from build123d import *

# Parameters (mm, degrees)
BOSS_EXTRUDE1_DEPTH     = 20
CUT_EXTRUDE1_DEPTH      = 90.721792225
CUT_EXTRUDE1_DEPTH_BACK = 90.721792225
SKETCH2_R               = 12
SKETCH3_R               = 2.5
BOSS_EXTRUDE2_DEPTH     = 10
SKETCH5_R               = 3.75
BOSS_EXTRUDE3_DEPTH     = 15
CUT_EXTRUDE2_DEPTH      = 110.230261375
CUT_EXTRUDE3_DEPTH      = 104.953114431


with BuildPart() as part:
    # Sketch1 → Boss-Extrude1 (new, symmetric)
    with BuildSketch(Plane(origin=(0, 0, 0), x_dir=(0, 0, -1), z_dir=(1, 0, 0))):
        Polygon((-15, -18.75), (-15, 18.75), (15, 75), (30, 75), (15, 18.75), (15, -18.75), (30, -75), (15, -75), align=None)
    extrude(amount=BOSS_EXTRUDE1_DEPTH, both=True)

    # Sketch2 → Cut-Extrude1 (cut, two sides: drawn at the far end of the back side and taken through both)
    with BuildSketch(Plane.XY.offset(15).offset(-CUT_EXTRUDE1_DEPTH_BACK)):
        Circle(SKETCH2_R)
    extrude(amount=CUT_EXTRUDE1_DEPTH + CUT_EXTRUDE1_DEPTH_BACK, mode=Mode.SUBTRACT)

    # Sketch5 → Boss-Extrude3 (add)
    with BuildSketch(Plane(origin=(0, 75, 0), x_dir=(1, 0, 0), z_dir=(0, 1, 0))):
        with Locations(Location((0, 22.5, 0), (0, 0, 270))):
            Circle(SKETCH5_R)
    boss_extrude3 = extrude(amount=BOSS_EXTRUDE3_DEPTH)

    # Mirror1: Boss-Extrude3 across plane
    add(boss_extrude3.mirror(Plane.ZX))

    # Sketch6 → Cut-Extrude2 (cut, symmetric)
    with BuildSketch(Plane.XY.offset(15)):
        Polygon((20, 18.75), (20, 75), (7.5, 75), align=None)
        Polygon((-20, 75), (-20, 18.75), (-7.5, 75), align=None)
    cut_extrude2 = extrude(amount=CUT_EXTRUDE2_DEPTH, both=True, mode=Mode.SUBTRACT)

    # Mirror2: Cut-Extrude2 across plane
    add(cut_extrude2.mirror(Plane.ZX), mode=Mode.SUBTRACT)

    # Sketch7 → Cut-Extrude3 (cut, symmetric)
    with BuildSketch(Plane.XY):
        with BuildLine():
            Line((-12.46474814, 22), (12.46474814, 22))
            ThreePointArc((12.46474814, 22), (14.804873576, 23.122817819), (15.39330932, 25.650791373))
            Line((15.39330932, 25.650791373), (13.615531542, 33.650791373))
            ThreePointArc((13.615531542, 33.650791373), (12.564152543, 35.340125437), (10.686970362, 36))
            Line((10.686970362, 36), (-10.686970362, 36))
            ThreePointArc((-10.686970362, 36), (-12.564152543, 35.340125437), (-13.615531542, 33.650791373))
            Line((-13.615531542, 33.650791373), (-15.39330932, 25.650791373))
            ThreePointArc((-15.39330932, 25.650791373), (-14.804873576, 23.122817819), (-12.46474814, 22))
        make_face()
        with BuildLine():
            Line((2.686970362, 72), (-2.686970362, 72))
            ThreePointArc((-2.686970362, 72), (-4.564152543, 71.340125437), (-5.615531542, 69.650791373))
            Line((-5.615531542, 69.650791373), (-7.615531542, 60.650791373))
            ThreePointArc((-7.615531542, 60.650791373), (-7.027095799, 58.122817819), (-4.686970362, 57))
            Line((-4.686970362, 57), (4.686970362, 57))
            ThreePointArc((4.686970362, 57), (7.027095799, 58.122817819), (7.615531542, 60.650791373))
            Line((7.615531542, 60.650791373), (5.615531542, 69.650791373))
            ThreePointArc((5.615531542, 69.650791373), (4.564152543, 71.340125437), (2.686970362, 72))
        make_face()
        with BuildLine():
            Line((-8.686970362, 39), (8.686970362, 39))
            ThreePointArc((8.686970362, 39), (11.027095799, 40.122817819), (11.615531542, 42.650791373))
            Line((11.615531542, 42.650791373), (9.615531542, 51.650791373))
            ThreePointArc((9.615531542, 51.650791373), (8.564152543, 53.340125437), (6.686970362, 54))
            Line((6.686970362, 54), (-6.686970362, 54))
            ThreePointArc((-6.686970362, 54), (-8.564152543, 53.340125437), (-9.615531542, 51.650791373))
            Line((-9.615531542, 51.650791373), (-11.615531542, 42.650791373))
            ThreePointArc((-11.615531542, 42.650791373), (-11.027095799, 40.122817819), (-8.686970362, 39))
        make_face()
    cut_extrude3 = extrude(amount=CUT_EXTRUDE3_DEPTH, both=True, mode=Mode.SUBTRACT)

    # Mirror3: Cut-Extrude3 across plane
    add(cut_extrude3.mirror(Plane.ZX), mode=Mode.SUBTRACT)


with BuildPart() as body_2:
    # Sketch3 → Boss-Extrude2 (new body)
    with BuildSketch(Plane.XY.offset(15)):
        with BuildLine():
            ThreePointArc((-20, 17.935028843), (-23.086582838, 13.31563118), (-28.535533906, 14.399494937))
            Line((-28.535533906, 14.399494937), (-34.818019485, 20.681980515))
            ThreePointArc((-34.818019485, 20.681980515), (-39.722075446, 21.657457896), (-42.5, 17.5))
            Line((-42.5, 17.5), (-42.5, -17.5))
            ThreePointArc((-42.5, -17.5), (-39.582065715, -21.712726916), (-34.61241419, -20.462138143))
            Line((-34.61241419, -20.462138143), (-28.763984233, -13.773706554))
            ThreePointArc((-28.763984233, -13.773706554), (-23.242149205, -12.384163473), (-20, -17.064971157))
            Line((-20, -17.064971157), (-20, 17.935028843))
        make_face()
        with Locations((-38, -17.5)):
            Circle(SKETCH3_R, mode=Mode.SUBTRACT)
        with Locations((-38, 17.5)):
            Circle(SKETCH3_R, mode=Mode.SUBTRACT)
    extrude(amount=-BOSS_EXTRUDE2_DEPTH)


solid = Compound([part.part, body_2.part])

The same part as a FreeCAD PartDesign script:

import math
import FreeCAD as App
import Part
import Sketcher

V = App.Vector
Q = App.Units.Quantity


def add_polygon(sketch, points):
    """Adds a closed chain of lines whose ends are joined by coincident constraints."""
    first, n = sketch.GeometryCount, len(points)
    for a, b in zip(points, points[1:] + points[:1]):
        sketch.addGeometry(Part.LineSegment(App.Vector(*a, 0), App.Vector(*b, 0)), False)
    for i in range(n):
        sketch.addConstraint(Sketcher.Constraint("Coincident", first + i, 2, first + (i + 1) % n, 1))

doc = App.newDocument("Part")
body = doc.addObject("PartDesign::Body", "Body")

sketch1 = body.newObject("Sketcher::SketchObject", "Sketch")
sketch1.AttachmentSupport = (doc.getObject("YZ_Plane"), [""])
sketch1.MapMode = "FlatFace"
add_polygon(sketch1, [(19, 15), (-19, 15), (-75, -15), (-75, -30), (-19, -15), (19, -15), (75, -30), (75, -15)])
sketch1.addConstraint([
    Sketcher.Constraint("Horizontal", 0),
    Sketcher.Constraint("Vertical", 2),
    Sketcher.Constraint("Horizontal", 4),
    Sketcher.Constraint("Vertical", 6),
    Sketcher.Constraint("Symmetric", 0, 2, 4, 2, -1, 1),
    Sketcher.Constraint("Symmetric", 2, 2, 5, 2, -2),
    Sketcher.Constraint("Horizontal", 1, 2, 3, 2),
    Sketcher.Constraint("Horizontal", 4, 2, 6, 2),
    Sketcher.Constraint("Vertical", 0, 2, 3, 2),
    Sketcher.Constraint("Vertical", 4, 2, 7, 2),
    Sketcher.Constraint("DistanceY", 2, 2, 2, 1, 15.0),
    Sketcher.Constraint("DistanceX", 0, 2, 0, 1, 37.5),
    Sketcher.Constraint("DistanceY", -1, 1, 0, 2, 15.0),
    Sketcher.Constraint("DistanceX", 1, 2, -1, 1, 75.0),
])
pad1 = body.newObject("PartDesign::Pad", "Pad")
pad1.Profile = sketch1
pad1.Length = 40
pad1.Midplane = True

sketch2 = body.newObject("Sketcher::SketchObject", "Sketch001")
sketch2.AttachmentSupport = (doc.getObject("XY_Plane"), [""])
sketch2.MapMode = "FlatFace"
sketch2.AttachmentOffset = App.Placement(V(0, 0, 15), App.Rotation())
sketch2.addGeometry(Part.Circle(V(0, 0, 0), V(0, 0, 1), 12), False)
sketch2.addConstraint([
    Sketcher.Constraint("Coincident", 0, 3, -1, 1),
    Sketcher.Constraint("Diameter", 0, 24.0),
])
pocket1 = body.newObject("PartDesign::Pocket", "Pocket")
pocket1.Profile = sketch2
pocket1.Type = "ThroughAll"
pocket1.Midplane = True

sketch3 = body.newObject("Sketcher::SketchObject", "Sketch002")
sketch3.AttachmentSupport = (doc.getObject("XZ_Plane"), [""])
sketch3.MapMode = "FlatFace"
sketch3.AttachmentOffset = App.Placement(V(0, 0, -75), App.Rotation())
sketch3.addGeometry(Part.Circle(V(0, -22.5, 0), V(0, 0, 1), 3.8), False)
sketch3.addConstraint([
    Sketcher.Constraint("PointOnObject", 0, 3, -2),
    Sketcher.Constraint("Diameter", 0, 7.5),
    Sketcher.Constraint("DistanceY", 0, 3, -1, 1, 22.5),
])
pad2 = body.newObject("PartDesign::Pad", "Pad001")
pad2.Profile = sketch3
pad2.Length = 15
pad2.Reversed = True
doc.recompute()

mirrored = body.newObject("PartDesign::Mirrored", "Mirrored")
mirrored.Originals = [pad2]
mirrored.MirrorPlane = (doc.getObject("XZ_Plane"), [""])
body.Tip = mirrored

sketch4 = body.newObject("Sketcher::SketchObject", "Sketch003")
sketch4.AttachmentSupport = (doc.getObject("XY_Plane"), [""])
sketch4.MapMode = "FlatFace"
sketch4.AttachmentOffset = App.Placement(V(0, 0, 15), App.Rotation())
add_polygon(sketch4, [(20, 19), (20, 75), (8, 75)])
add_polygon(sketch4, [(-20, 75), (-20, 19), (-8, 75)])
sketch4.addConstraint([
    Sketcher.Constraint("Vertical", 0),
    Sketcher.Constraint("Horizontal", 1),
    Sketcher.Constraint("Vertical", 3),
    Sketcher.Constraint("Horizontal", 5),
    Sketcher.Constraint("Symmetric", 2, 2, 3, 2, -2),
    Sketcher.Constraint("Symmetric", 1, 2, 4, 2, -2),
    Sketcher.Constraint("DistanceX", 1, 2, 1, 1, 12.5),
    Sketcher.Constraint("DistanceX", -1, 1, 0, 2, 20.0),
    Sketcher.Constraint("DistanceY", -1, 1, 0, 2, 75.0),
    Sketcher.Constraint("DistanceY", 0, 1, 0, 2, 56.25),
])
pocket2 = body.newObject("PartDesign::Pocket", "Pocket001")
pocket2.Profile = sketch4
pocket2.Length = 220.460523
pocket2.Midplane = True
doc.recompute()

mirrored2 = body.newObject("PartDesign::Mirrored", "Mirrored001")
mirrored2.Originals = [pocket2]
mirrored2.MirrorPlane = (doc.getObject("XZ_Plane"), [""])
body.Tip = mirrored2

sketch5 = body.newObject("Sketcher::SketchObject", "Sketch004")
sketch5.AttachmentSupport = (doc.getObject("XY_Plane"), [""])
sketch5.MapMode = "FlatFace"
sketch5.addGeometry([
    Part.LineSegment(V(-12.5, 22, 0), V(12.5, 22, 0)),
    Part.ArcOfCircle(Part.Circle(V(12.5, 25, 0), V(0, 0, 1), 3), math.radians(-90), math.radians(13)),
    Part.LineSegment(V(15.4, 25.7, 0), V(13.6, 33.7, 0)),
    Part.ArcOfCircle(Part.Circle(V(10.7, 33, 0), V(0, 0, 1), 3), math.radians(13), math.radians(90)),
    Part.LineSegment(V(10.7, 36, 0), V(-10.7, 36, 0)),
    Part.ArcOfCircle(Part.Circle(V(-10.7, 33, 0), V(0, 0, 1), 3), math.radians(90), math.radians(167)),
    Part.LineSegment(V(-13.6, 33.7, 0), V(-15.4, 25.7, 0)),
    Part.ArcOfCircle(Part.Circle(V(-12.5, 25, 0), V(0, 0, 1), 3), math.radians(167), math.radians(270)),
    Part.LineSegment(V(2.7, 72, 0), V(-2.7, 72, 0)),
    Part.ArcOfCircle(Part.Circle(V(-2.7, 69, 0), V(0, 0, 1), 3), math.radians(90), math.radians(167)),
    Part.LineSegment(V(-5.6, 69.7, 0), V(-7.6, 60.7, 0)),
    Part.ArcOfCircle(Part.Circle(V(-4.7, 60, 0), V(0, 0, 1), 3), math.radians(167), math.radians(270)),
    Part.LineSegment(V(-4.7, 57, 0), V(4.7, 57, 0)),
    Part.ArcOfCircle(Part.Circle(V(4.7, 60, 0), V(0, 0, 1), 3), math.radians(-90), math.radians(13)),
    Part.LineSegment(V(7.6, 60.7, 0), V(5.6, 69.7, 0)),
    Part.ArcOfCircle(Part.Circle(V(2.7, 69, 0), V(0, 0, 1), 3), math.radians(13), math.radians(90)),
    Part.LineSegment(V(-8.7, 39, 0), V(8.7, 39, 0)),
    Part.ArcOfCircle(Part.Circle(V(8.7, 42, 0), V(0, 0, 1), 3), math.radians(-90), math.radians(13)),
    Part.LineSegment(V(11.6, 42.7, 0), V(9.6, 51.7, 0)),
    Part.ArcOfCircle(Part.Circle(V(6.7, 51, 0), V(0, 0, 1), 3), math.radians(13), math.radians(90)),
    Part.LineSegment(V(6.7, 54, 0), V(-6.7, 54, 0)),
    Part.ArcOfCircle(Part.Circle(V(-6.7, 51, 0), V(0, 0, 1), 3), math.radians(90), math.radians(167)),
    Part.LineSegment(V(-9.6, 51.7, 0), V(-11.6, 42.7, 0)),
    Part.ArcOfCircle(Part.Circle(V(-8.7, 42, 0), V(0, 0, 1), 3), math.radians(167), math.radians(270)),
], False)
sketch5.addConstraint([
    Sketcher.Constraint("Tangent", 0, 2, 1, 1),
    Sketcher.Constraint("Tangent", 1, 2, 2, 1),
    Sketcher.Constraint("Tangent", 2, 2, 3, 1),
    Sketcher.Constraint("Tangent", 3, 2, 4, 1),
    Sketcher.Constraint("Tangent", 4, 2, 5, 1),
    Sketcher.Constraint("Tangent", 5, 2, 6, 1),
    Sketcher.Constraint("Tangent", 6, 2, 7, 1),
    Sketcher.Constraint("Tangent", 7, 2, 0, 1),
    Sketcher.Constraint("Tangent", 8, 2, 9, 1),
    Sketcher.Constraint("Tangent", 9, 2, 10, 1),
    Sketcher.Constraint("Tangent", 10, 2, 11, 1),
    Sketcher.Constraint("Tangent", 11, 2, 12, 1),
    Sketcher.Constraint("Tangent", 12, 2, 13, 1),
    Sketcher.Constraint("Tangent", 13, 2, 14, 1),
    Sketcher.Constraint("Tangent", 14, 2, 15, 1),
    Sketcher.Constraint("Tangent", 15, 2, 8, 1),
    Sketcher.Constraint("Tangent", 16, 2, 17, 1),
    Sketcher.Constraint("Tangent", 17, 2, 18, 1),
    Sketcher.Constraint("Tangent", 18, 2, 19, 1),
    Sketcher.Constraint("Tangent", 19, 2, 20, 1),
    Sketcher.Constraint("Tangent", 20, 2, 21, 1),
    Sketcher.Constraint("Tangent", 21, 2, 22, 1),
    Sketcher.Constraint("Tangent", 22, 2, 23, 1),
    Sketcher.Constraint("Tangent", 23, 2, 16, 1),
    Sketcher.Constraint("Horizontal", 0),
    Sketcher.Constraint("Horizontal", 4),
    Sketcher.Constraint("Horizontal", 8),
    Sketcher.Constraint("Horizontal", 12),
    Sketcher.Constraint("Horizontal", 16),
    Sketcher.Constraint("Horizontal", 20),
    Sketcher.Constraint("Equal", 1, 3),
    Sketcher.Constraint("Equal", 3, 5),
    Sketcher.Constraint("Equal", 5, 7),
    Sketcher.Constraint("Equal", 7, 9),
    Sketcher.Constraint("Equal", 9, 11),
    Sketcher.Constraint("Equal", 11, 13),
    Sketcher.Constraint("Equal", 13, 15),
    Sketcher.Constraint("Equal", 15, 17),
    Sketcher.Constraint("Equal", 17, 19),
    Sketcher.Constraint("Equal", 19, 21),
    Sketcher.Constraint("Equal", 21, 23),
    Sketcher.Constraint("Symmetric", 2, 2, 5, 2, -2),
    Sketcher.Constraint("Symmetric", 10, 2, 13, 2, -2),
    Sketcher.Constraint("Symmetric", 18, 2, 21, 2, -2),
    Sketcher.Constraint("Parallel", 6, 10),
    Sketcher.Constraint("Parallel", 14, 18),
    Sketcher.Constraint("Equal", 14, 18),
    Sketcher.Constraint("Radius", 1, 3.0),
    Sketcher.Constraint("DistanceY", -1, 1, 1, 3, 25.0),
    Sketcher.Constraint("DistanceY", -1, 1, 3, 3, 33.0),
    Sketcher.Constraint("DistanceY", -1, 1, 9, 3, 69.0),
    Sketcher.Constraint("DistanceY", -1, 1, 11, 3, 60.0),
    Sketcher.Constraint("DistanceY", -1, 1, 17, 3, 42.0),
    Sketcher.Constraint("DistanceX", 5, 3, 9, 3, 8.0),
    Sketcher.Constraint("DistanceX", 11, 3, 9, 3, 2.0),
    Sketcher.Constraint("DistanceX", 17, 3, 3, 3, 2.0),
    Sketcher.Constraint("DistanceX", 4, 2, 4, 1, 21.373941),
])
pocket3 = body.newObject("PartDesign::Pocket", "Pocket002")
pocket3.Profile = sketch5
pocket3.Length = 209.906229
pocket3.Midplane = True
doc.recompute()

mirrored3 = body.newObject("PartDesign::Mirrored", "Mirrored002")
mirrored3.Originals = [pocket3]
mirrored3.MirrorPlane = (doc.getObject("XZ_Plane"), [""])
body.Tip = mirrored3
body2 = doc.addObject("PartDesign::Body", "Body001")

sketch6 = body2.newObject("Sketcher::SketchObject", "Sketch005")
sketch6.AttachmentSupport = (doc.getObject("XY_Plane001"), [""])
sketch6.MapMode = "FlatFace"
sketch6.AttachmentOffset = App.Placement(V(0, 0, 15), App.Rotation())
sketch6.addGeometry([
    Part.ArcOfCircle(Part.Circle(V(-25, 17.9, 0), V(0, 0, 1), 5), math.radians(-135), math.radians(0)),
    Part.LineSegment(V(-28.5, 14.4, 0), V(-34.8, 20.7, 0)),
    Part.ArcOfCircle(Part.Circle(V(-38, 17.5, 0), V(0, 0, 1), 4.5), math.radians(45), math.radians(180)),
    Part.LineSegment(V(-42.5, 17.5, 0), V(-42.5, -17.5, 0)),
    Part.ArcOfCircle(Part.Circle(V(-38, -17.5, 0), V(0, 0, 1), 4.5), math.radians(-180), math.radians(-41)),
    Part.LineSegment(V(-34.6, -20.5, 0), V(-28.8, -13.8, 0)),
    Part.ArcOfCircle(Part.Circle(V(-25, -17.1, 0), V(0, 0, 1), 5), math.radians(0), math.radians(139)),
    Part.LineSegment(V(-20, -17.1, 0), V(-20, 17.9, 0)),
    Part.Circle(V(-38, -17.5, 0), V(0, 0, 1), 2.5),
    Part.Circle(V(-38, 17.5, 0), V(0, 0, 1), 2.5),
], False)
sketch6.addConstraint([
    Sketcher.Constraint("Tangent", 0, 1, 1, 1),
    Sketcher.Constraint("Tangent", 1, 2, 2, 1),
    Sketcher.Constraint("Tangent", 2, 2, 3, 1),
    Sketcher.Constraint("Tangent", 3, 2, 4, 1),
    Sketcher.Constraint("Tangent", 4, 2, 5, 1),
    Sketcher.Constraint("Tangent", 5, 2, 6, 2),
    Sketcher.Constraint("Tangent", 6, 1, 7, 1),
    Sketcher.Constraint("Tangent", 7, 2, 0, 2),
    Sketcher.Constraint("Vertical", 3),
    Sketcher.Constraint("Vertical", 7),
    Sketcher.Constraint("Coincident", 8, 3, 4, 3),
    Sketcher.Constraint("Coincident", 9, 3, 2, 3),
    Sketcher.Constraint("Equal", 2, 4),
    Sketcher.Constraint("Equal", 0, 6),
    Sketcher.Constraint("Equal", 8, 9),
    Sketcher.Constraint("Equal", 3, 7),
    Sketcher.Constraint("Diameter", 8, 5.0),
    Sketcher.Constraint("Radius", 0, 5.0),
    Sketcher.Constraint("Radius", 2, 4.5),
    Sketcher.Constraint("DistanceY", 3, 2, 3, 1, 35.0),
    Sketcher.Constraint("Angle", 1, Q("135 deg")),
    Sketcher.Constraint("DistanceX", 0, 3, -1, 1, 25.0),
    Sketcher.Constraint("DistanceX", 2, 3, -1, 1, 38.0),
    Sketcher.Constraint("DistanceY", -1, 1, 2, 3, 17.5),
])
pad3 = body2.newObject("PartDesign::Pad", "Pad002")
pad3.Profile = sketch6
pad3.Length = 10
pad3.Reversed = True

doc.recompute()
